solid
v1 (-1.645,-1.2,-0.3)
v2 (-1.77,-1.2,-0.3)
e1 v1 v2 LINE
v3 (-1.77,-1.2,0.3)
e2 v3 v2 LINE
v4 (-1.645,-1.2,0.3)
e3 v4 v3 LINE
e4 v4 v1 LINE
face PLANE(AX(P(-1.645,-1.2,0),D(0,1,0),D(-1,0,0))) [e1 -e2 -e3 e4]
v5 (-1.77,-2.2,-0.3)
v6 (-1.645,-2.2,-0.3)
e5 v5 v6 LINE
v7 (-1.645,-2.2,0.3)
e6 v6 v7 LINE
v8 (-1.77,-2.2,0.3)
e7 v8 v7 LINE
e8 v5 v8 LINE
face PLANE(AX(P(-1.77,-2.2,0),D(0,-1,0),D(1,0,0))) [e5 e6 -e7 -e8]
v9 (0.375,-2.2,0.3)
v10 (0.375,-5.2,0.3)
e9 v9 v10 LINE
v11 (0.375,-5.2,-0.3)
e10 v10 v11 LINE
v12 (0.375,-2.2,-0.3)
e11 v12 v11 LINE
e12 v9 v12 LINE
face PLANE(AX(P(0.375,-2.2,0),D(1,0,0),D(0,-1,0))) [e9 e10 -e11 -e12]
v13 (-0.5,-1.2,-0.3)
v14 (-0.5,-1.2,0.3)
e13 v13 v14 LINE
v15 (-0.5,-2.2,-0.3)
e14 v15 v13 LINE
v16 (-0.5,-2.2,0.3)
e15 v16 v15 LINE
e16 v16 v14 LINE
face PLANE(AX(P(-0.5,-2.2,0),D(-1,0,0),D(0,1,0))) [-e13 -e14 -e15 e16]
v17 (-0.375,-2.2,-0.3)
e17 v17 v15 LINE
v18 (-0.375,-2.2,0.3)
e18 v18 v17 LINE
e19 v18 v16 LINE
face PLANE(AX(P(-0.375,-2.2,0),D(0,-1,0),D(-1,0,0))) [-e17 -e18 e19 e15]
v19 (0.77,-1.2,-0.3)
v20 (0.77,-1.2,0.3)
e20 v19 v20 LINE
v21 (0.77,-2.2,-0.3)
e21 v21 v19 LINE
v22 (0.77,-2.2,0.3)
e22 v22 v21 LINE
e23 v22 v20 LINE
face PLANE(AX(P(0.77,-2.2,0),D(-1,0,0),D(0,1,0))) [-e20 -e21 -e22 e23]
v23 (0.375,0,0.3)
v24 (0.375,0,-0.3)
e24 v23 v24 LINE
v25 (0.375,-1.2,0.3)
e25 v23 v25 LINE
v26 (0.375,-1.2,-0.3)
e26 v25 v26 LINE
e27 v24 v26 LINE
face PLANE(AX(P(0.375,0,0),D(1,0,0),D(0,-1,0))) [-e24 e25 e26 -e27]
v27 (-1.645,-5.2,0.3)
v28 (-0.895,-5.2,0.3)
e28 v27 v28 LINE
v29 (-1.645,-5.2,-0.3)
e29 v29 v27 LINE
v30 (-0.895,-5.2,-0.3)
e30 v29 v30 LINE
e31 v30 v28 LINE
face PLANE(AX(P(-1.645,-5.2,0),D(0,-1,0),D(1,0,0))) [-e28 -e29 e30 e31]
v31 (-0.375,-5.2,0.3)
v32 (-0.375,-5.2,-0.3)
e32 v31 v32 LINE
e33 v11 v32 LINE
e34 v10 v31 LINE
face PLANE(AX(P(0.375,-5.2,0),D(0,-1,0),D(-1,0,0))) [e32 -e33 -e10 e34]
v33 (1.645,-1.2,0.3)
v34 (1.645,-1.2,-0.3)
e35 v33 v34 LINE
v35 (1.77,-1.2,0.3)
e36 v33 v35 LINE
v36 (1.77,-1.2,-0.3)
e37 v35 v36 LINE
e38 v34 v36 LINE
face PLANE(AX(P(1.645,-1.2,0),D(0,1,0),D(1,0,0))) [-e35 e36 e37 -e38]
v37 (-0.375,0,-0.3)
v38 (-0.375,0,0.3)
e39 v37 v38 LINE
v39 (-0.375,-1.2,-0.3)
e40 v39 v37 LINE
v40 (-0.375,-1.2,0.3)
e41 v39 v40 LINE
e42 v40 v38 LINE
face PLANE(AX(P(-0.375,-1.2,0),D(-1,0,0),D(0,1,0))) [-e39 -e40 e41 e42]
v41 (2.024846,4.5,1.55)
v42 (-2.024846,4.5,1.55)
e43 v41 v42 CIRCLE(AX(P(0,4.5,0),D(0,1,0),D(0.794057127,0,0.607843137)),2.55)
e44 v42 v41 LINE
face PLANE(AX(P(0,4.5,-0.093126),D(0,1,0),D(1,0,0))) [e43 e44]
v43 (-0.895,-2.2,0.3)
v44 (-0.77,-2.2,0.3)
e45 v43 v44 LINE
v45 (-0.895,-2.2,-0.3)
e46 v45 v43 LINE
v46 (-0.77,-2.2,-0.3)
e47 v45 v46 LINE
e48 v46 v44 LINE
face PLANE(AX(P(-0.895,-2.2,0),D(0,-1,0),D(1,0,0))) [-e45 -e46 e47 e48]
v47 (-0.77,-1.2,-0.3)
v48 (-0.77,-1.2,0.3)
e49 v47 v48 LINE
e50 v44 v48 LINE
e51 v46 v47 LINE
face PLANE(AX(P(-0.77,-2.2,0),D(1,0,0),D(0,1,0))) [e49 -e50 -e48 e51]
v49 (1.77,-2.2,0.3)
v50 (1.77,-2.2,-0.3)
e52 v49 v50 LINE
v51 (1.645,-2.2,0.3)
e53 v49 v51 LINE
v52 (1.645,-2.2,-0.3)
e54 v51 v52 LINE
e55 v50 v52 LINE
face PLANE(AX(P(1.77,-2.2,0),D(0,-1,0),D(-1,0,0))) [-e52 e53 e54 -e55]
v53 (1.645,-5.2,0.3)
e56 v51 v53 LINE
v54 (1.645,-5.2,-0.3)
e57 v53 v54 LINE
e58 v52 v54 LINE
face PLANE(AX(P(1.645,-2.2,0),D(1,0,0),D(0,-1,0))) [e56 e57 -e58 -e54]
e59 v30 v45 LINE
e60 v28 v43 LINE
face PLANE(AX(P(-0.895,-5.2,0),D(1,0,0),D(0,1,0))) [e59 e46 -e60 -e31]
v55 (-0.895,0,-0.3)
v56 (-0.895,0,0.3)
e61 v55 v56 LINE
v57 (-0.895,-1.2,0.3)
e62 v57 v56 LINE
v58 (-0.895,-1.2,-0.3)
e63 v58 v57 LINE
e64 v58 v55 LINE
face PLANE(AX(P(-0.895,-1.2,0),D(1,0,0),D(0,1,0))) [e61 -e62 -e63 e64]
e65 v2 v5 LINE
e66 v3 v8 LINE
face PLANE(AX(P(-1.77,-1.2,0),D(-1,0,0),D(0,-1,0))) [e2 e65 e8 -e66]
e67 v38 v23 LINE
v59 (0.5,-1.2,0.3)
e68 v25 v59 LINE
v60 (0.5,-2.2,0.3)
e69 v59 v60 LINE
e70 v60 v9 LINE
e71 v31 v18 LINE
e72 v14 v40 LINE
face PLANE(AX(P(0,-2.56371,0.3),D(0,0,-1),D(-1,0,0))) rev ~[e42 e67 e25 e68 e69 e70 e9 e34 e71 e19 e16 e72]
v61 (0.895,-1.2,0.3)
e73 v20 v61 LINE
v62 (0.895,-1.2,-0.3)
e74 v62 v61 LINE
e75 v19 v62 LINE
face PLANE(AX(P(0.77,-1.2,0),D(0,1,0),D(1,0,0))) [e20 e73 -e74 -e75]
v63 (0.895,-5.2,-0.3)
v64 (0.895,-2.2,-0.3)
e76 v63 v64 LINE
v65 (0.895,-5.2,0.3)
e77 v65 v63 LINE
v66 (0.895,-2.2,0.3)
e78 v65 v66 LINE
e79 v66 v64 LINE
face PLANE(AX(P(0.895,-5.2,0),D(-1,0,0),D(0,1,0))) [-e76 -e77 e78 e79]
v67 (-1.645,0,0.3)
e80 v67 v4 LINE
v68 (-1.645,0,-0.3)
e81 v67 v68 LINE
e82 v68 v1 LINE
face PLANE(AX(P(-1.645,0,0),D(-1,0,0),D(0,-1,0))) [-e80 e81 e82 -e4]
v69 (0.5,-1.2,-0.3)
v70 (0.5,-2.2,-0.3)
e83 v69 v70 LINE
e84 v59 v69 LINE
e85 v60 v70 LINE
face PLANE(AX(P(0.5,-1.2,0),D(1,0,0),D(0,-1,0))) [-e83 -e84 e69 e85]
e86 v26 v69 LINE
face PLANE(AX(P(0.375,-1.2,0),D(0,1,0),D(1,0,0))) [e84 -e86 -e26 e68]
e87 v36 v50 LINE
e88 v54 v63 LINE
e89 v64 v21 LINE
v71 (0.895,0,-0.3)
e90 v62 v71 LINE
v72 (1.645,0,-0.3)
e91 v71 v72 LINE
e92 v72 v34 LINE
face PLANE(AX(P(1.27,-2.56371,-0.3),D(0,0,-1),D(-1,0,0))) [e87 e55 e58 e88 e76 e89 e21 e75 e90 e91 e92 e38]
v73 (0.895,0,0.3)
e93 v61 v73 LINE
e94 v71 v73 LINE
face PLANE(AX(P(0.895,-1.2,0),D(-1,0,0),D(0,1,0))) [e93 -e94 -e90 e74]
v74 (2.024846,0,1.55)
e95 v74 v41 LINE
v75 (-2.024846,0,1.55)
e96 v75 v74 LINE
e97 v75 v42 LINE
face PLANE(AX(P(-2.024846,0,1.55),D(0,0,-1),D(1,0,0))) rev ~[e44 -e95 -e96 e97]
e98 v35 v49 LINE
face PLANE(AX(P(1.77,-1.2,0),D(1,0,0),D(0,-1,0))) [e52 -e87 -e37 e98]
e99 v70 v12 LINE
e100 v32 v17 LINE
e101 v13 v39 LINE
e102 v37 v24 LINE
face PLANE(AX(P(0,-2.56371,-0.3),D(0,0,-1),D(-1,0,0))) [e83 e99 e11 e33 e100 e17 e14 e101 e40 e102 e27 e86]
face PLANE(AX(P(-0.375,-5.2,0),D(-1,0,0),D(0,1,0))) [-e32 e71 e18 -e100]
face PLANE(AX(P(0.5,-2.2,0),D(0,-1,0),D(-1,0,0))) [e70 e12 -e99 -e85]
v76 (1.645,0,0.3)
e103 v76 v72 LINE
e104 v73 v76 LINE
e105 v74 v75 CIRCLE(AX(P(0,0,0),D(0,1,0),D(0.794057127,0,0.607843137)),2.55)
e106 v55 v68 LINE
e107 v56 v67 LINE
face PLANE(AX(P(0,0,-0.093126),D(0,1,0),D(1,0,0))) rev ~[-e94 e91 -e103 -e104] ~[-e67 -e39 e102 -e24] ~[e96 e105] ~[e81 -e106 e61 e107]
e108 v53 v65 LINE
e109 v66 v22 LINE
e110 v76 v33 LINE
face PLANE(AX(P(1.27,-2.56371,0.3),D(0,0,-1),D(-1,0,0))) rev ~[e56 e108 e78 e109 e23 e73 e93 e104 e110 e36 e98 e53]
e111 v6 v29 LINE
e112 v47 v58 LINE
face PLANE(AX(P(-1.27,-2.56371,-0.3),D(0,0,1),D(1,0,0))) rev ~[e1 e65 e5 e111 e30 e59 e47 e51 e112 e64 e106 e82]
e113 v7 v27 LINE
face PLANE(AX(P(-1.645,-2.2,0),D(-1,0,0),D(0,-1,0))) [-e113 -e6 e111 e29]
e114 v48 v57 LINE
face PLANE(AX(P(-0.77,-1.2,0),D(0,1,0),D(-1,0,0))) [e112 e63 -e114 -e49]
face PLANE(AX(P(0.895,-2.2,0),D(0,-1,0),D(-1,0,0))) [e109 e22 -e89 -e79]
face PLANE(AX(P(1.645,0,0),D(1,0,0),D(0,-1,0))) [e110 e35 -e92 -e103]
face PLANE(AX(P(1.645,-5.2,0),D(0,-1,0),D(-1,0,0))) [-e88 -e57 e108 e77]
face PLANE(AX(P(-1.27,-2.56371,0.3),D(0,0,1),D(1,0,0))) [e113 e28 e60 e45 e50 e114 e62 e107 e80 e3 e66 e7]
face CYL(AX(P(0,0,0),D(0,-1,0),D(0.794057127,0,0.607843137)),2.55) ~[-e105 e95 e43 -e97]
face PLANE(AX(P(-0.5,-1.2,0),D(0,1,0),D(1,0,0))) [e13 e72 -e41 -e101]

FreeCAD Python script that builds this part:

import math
import FreeCAD as App
import Part
import Sketcher
from FreeCAD import Vector
Q = App.Units.Quantity


def add_polygon(sketch, points):
    """Adds a closed chain of lines whose ends are joined by coincident constraints."""
    first, n = sketch.GeometryCount, len(points)
    for a, b in zip(points, points[1:] + points[:1]):
        sketch.addGeometry(Part.LineSegment(App.Vector(*a, 0), App.Vector(*b, 0)), False)
    for i in range(n):
        sketch.addConstraint(Sketcher.Constraint("Coincident", first + i, 2, first + (i + 1) % n, 1))

doc = App.newDocument("Part")
body = doc.addObject("PartDesign::Body", "Body")

# Sketch on XZ plane
sketch1 = body.newObject("Sketcher::SketchObject", "Sketch")
sketch1.AttachmentSupport = (doc.getObject("XZ_Plane"), [""])
sketch1.MapMode = "FlatFace"
sketch1.addGeometry([
    Part.LineSegment(Vector(-2, 1.6, 0), Vector(2, 1.6, 0)),
    Part.ArcOfCircle(Part.Circle(Vector(0, 0, 0), Vector(0, 0, 1), 2.5), math.radians(143), math.radians(397)),
], False)
sketch1.addConstraint([
    Sketcher.Constraint("Coincident", 0, 1, 1, 1),
    Sketcher.Constraint("Coincident", 1, 2, 0, 2),
    Sketcher.Constraint("Horizontal", 0),
    Sketcher.Constraint("Coincident", 1, 3, -1, 1),
    Sketcher.Constraint("Radius", 1, Q("2.55 mm")),
    Sketcher.Constraint("DistanceY", -1, 1, 0, 1, Q("1.55 mm")),
])
pad1 = body.newObject("PartDesign::Pad", "Pad")
pad1.Profile = sketch1
pad1.Length = 4.5
pad1.Reversed = True

# Sketch on XY plane
sketch2 = body.newObject("Sketcher::SketchObject", "Sketch001")
sketch2.AttachmentSupport = (doc.getObject("XY_Plane"), [""])
sketch2.MapMode = "FlatFace"
add_polygon(sketch2, [(0.38, 0), (-0.38, 0), (-0.38, -1.2), (-0.5, -1.2), (-0.5, -2.2), (-0.38, -2.2), (-0.38, -5.2), (0.38, -5.2), (0.38, -2.2), (0.5, -2.2), (0.5, -1.2), (0.38, -1.2)])  # lines 0-11
add_polygon(sketch2, [(1.65, 0), (0.9, 0), (0.9, -1.2), (0.77, -1.2), (0.77, -2.2), (0.9, -2.2), (0.9, -5.2), (1.65, -5.2), (1.65, -2.2), (1.77, -2.2), (1.77, -1.2), (1.65, -1.2)])  # lines 12-23
add_polygon(sketch2, [(-1.77, -1.2), (-1.77, -2.2), (-1.65, -2.2), (-1.65, -5.2), (-0.9, -5.2), (-0.9, -2.2), (-0.77, -2.2), (-0.77, -1.2), (-0.9, -1.2), (-0.9, 0), (-1.65, 0), (-1.65, -1.2)])  # lines 24-35
sketch2.addConstraint([
    Sketcher.Constraint("Horizontal", 0),
    Sketcher.Constraint("Vertical", 1),
    Sketcher.Constraint("Horizontal", 2),
    Sketcher.Constraint("Vertical", 3),
    Sketcher.Constraint("Horizontal", 4),
    Sketcher.Constraint("Vertical", 5),
    Sketcher.Constraint("Horizontal", 6),
    Sketcher.Constraint("Vertical", 7),
    Sketcher.Constraint("Horizontal", 8),
    Sketcher.Constraint("Vertical", 9),
    Sketcher.Constraint("Horizontal", 10),
    Sketcher.Constraint("Vertical", 11),
    Sketcher.Constraint("Horizontal", 12),
    Sketcher.Constraint("Vertical", 13),
    Sketcher.Constraint("Horizontal", 14),
    Sketcher.Constraint("Vertical", 15),
    Sketcher.Constraint("Horizontal", 16),
    Sketcher.Constraint("Vertical", 17),
    Sketcher.Constraint("Horizontal", 18),
    Sketcher.Constraint("Vertical", 19),
    Sketcher.Constraint("Horizontal", 20),
    Sketcher.Constraint("Vertical", 21),
    Sketcher.Constraint("Horizontal", 22),
    Sketcher.Constraint("Vertical", 23),
    Sketcher.Constraint("Vertical", 24),
    Sketcher.Constraint("Horizontal", 25),
    Sketcher.Constraint("Vertical", 26),
    Sketcher.Constraint("Horizontal", 27),
    Sketcher.Constraint("Vertical", 28),
    Sketcher.Constraint("Horizontal", 29),
    Sketcher.Constraint("Vertical", 30),
    Sketcher.Constraint("Horizontal", 31),
    Sketcher.Constraint("Vertical", 32),
    Sketcher.Constraint("Horizontal", 33),
    Sketcher.Constraint("Vertical", 34),
    Sketcher.Constraint("Horizontal", 35),
    Sketcher.Constraint("Symmetric", 0, 2, 11, 2, -1, 1),
    Sketcher.Constraint("Symmetric", 12, 2, 32, 2, -1, 1),
    Sketcher.Constraint("Symmetric", 4, 2, 7, 2, -2),
    Sketcher.Constraint("Symmetric", 2, 2, 9, 2, -2),
    Sketcher.Constraint("Symmetric", 20, 2, 24, 2, -2),
    Sketcher.Constraint("Symmetric", 18, 2, 26, 2, -2),
    Sketcher.Constraint("Symmetric", 16, 2, 28, 2, -2),
    Sketcher.Constraint("Symmetric", 14, 2, 30, 2, -2),
    Sketcher.Constraint("Symmetric", 23, 2, 33, 2, -2),
    Sketcher.Constraint("Horizontal", 10, 2, 13, 2),
    Sketcher.Constraint("Horizontal", 8, 2, 15, 2),
    Sketcher.Constraint("Horizontal", 6, 2, 17, 2),
    Sketcher.Constraint("Horizontal", 16, 2, 19, 2),
    Sketcher.Constraint("Horizontal", 14, 2, 21, 2),
    Sketcher.Constraint("Horizontal", 31, 2, 34, 2),
    Sketcher.Constraint("Vertical", 1, 2, 4, 2),
    Sketcher.Constraint("Vertical", 13, 2, 16, 2),
    Sketcher.Constraint("Vertical", 19, 2, 22, 2),
    Sketcher.Constraint("Equal", 6, 12),
    Sketcher.Constraint("Equal", 10, 14),
    Sketcher.Constraint("Equal", 16, 20),
    Sketcher.Constraint("DistanceY", 3, 2, 3, 1, Q("1 mm")),
    Sketcher.Constraint("DistanceY", 5, 2, 5, 1, Q("3 mm")),
    Sketcher.Constraint("DistanceY", 1, 2, 1, 1, Q("1.2 mm")),
    Sketcher.Constraint("DistanceX", 3, 2, 8, 2, Q("1 mm")),
    Sketcher.Constraint("DistanceX", 0, 2, 0, 1, Q("0.75 mm")),
    Sketcher.Constraint("DistanceX", -1, 1, 14, 2, Q("0.77 mm")),
])
pad2 = body.newObject("PartDesign::Pad", "Pad001")
pad2.Profile = sketch2
pad2.Length = 0.6
pad2.Midplane = True

doc.recompute()
